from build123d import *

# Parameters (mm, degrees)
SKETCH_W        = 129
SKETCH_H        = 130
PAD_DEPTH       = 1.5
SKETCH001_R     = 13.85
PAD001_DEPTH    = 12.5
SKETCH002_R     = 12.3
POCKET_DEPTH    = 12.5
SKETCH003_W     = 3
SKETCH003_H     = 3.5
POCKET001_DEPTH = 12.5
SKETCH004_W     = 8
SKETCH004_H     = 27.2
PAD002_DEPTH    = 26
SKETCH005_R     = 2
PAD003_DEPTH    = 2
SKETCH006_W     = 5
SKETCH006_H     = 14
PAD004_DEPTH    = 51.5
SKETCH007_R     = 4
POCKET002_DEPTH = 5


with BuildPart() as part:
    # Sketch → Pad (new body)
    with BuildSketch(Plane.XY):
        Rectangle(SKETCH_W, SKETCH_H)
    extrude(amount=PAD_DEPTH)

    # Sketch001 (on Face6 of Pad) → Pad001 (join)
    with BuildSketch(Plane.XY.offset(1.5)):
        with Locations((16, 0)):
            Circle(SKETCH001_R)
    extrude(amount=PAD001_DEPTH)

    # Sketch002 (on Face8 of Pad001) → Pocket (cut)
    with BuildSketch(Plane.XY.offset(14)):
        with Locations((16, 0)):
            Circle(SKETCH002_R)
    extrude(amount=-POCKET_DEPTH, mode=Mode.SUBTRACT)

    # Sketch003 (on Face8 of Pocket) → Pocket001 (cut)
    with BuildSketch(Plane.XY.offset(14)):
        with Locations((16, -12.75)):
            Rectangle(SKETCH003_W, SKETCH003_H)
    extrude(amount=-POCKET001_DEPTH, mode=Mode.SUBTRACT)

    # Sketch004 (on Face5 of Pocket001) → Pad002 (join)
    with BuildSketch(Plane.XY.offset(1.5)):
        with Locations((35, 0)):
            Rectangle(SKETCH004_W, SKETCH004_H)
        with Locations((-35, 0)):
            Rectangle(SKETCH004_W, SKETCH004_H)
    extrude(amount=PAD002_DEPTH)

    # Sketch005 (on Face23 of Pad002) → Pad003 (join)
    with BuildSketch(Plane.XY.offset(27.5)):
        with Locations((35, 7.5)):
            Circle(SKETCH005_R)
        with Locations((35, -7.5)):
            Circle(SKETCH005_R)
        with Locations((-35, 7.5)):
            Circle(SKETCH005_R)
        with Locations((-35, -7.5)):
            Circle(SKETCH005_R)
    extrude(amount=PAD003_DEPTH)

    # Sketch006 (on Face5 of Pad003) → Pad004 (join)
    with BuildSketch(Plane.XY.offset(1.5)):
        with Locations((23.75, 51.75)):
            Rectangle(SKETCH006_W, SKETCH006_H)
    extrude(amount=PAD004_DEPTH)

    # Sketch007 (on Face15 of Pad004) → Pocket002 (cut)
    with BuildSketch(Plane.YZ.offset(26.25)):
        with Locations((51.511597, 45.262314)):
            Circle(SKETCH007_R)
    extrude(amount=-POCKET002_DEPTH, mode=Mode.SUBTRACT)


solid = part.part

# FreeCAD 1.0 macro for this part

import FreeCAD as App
import Part
import Sketcher
Q = App.Units.Quantity

doc = App.newDocument("Part")
body = doc.addObject("PartDesign::Body", "Body")

sketch1 = doc.addObject("Sketcher::SketchObject", "Sketch")
body.addObject(sketch1)
sketch1.AttachmentSupport = (doc.XY_Plane, [""])
sketch1.MapMode = "FlatFace"
sketch1.addGeometry([
    Part.LineSegment(App.Vector(-64.5, 65, 0), App.Vector(-64.5, -65, 0)),
    Part.LineSegment(App.Vector(-64.5, -65, 0), App.Vector(64.5, -65, 0)),
    Part.LineSegment(App.Vector(64.5, -65, 0), App.Vector(64.5, 65, 0)),
    Part.LineSegment(App.Vector(64.5, 65, 0), App.Vector(-64.5, 65, 0)),
], False)
sketch1.addConstraint([
    Sketcher.Constraint("Coincident", 0, 2, 1, 1),
    Sketcher.Constraint("Coincident", 1, 2, 2, 1),
    Sketcher.Constraint("Coincident", 2, 2, 3, 1),
    Sketcher.Constraint("Coincident", 3, 2, 0, 1),
    Sketcher.Constraint("Vertical", 0),
    Sketcher.Constraint("Horizontal", 1),
    Sketcher.Constraint("Vertical", 2),
    Sketcher.Constraint("Horizontal", 3),
    Sketcher.Constraint("Symmetric", 0, 2, 2, 2, -1, 1),
    Sketcher.Constraint("DistanceX", 1, 1, 1, 2, Q("129 mm")),
    Sketcher.Constraint("DistanceY", 0, 2, 0, 1, Q("130 mm")),
])
pad1 = doc.addObject("PartDesign::Pad", "Pad")
body.addObject(pad1)
pad1.Profile = sketch1
pad1.Length = 1.5

sketch2 = doc.addObject("Sketcher::SketchObject", "Sketch001")
body.addObject(sketch2)
sketch2.AttachmentSupport = (doc.XY_Plane, [""])
sketch2.MapMode = "FlatFace"
sketch2.AttachmentOffset = App.Placement(App.Vector(0, 0, 1.5), App.Rotation())
sketch2.addGeometry(Part.Circle(App.Vector(16, 0, 0), App.Vector(0, 0, 1), 13.85), False)
sketch2.addConstraint([
    Sketcher.Constraint("PointOnObject", 0, 3, -1),
    Sketcher.Constraint("Diameter", 0, Q("27.7 mm")),
    Sketcher.Constraint("DistanceX", -1, 1, 0, 3, Q("16 mm")),
])
pad2 = doc.addObject("PartDesign::Pad", "Pad001")
body.addObject(pad2)
pad2.Profile = sketch2
pad2.Length = 12.5

sketch3 = doc.addObject("Sketcher::SketchObject", "Sketch002")
body.addObject(sketch3)
sketch3.AttachmentSupport = (doc.XY_Plane, [""])
sketch3.MapMode = "FlatFace"
sketch3.AttachmentOffset = App.Placement(App.Vector(0, 0, 14), App.Rotation())
sketch3.addGeometry(Part.Circle(App.Vector(16, 0, 0), App.Vector(0, 0, 1), 12.3), False)
sketch3.addConstraint([
    Sketcher.Constraint("PointOnObject", 0, 3, -1),
    Sketcher.Constraint("Diameter", 0, Q("24.6 mm")),
    Sketcher.Constraint("DistanceX", -1, 1, 0, 3, Q("16 mm")),
])
pocket1 = doc.addObject("PartDesign::Pocket", "Pocket")
body.addObject(pocket1)
pocket1.Profile = sketch3
pocket1.Length = 12.5

sketch4 = doc.addObject("Sketcher::SketchObject", "Sketch003")
body.addObject(sketch4)
sketch4.AttachmentSupport = (doc.XY_Plane, [""])
sketch4.MapMode = "FlatFace"
sketch4.AttachmentOffset = App.Placement(App.Vector(0, 0, 14), App.Rotation())
sketch4.addGeometry([
    Part.LineSegment(App.Vector(14.5, -11, 0), App.Vector(14.5, -14.5, 0)),
    Part.LineSegment(App.Vector(14.5, -14.5, 0), App.Vector(17.5, -14.5, 0)),
    Part.LineSegment(App.Vector(17.5, -14.5, 0), App.Vector(17.5, -11, 0)),
    Part.LineSegment(App.Vector(17.5, -11, 0), App.Vector(14.5, -11, 0)),
], False)
sketch4.addConstraint([
    Sketcher.Constraint("Coincident", 0, 2, 1, 1),
    Sketcher.Constraint("Coincident", 1, 2, 2, 1),
    Sketcher.Constraint("Coincident", 2, 2, 3, 1),
    Sketcher.Constraint("Coincident", 3, 2, 0, 1),
    Sketcher.Constraint("Vertical", 0),
    Sketcher.Constraint("Horizontal", 1),
    Sketcher.Constraint("Vertical", 2),
    Sketcher.Constraint("Horizontal", 3),
    Sketcher.Constraint("DistanceX", 1, 1, 1, 2, Q("3 mm")),
    Sketcher.Constraint("DistanceY", 0, 2, 0, 1, Q("3.5 mm")),
    Sketcher.Constraint("DistanceY", 2, 2, -1, 1, Q("11 mm")),
    Sketcher.Constraint("DistanceX", -1, 1, 0, 2, Q("14.5 mm")),
])
pocket2 = doc.addObject("PartDesign::Pocket", "Pocket001")
body.addObject(pocket2)
pocket2.Profile = sketch4
pocket2.Length = 12.5

sketch5 = doc.addObject("Sketcher::SketchObject", "Sketch004")
body.addObject(sketch5)
sketch5.AttachmentSupport = (doc.XY_Plane, [""])
sketch5.MapMode = "FlatFace"
sketch5.AttachmentOffset = App.Placement(App.Vector(0, 0, 1.5), App.Rotation())
sketch5.addGeometry([
    Part.LineSegment(App.Vector(31, 13.6, 0), App.Vector(31, -13.6, 0)),
    Part.LineSegment(App.Vector(31, -13.6, 0), App.Vector(39, -13.6, 0)),
    Part.LineSegment(App.Vector(39, -13.6, 0), App.Vector(39, 13.6, 0)),
    Part.LineSegment(App.Vector(39, 13.6, 0), App.Vector(31, 13.6, 0)),
    Part.LineSegment(App.Vector(-39, 13.6, 0), App.Vector(-39, -13.6, 0)),
    Part.LineSegment(App.Vector(-39, -13.6, 0), App.Vector(-31, -13.6, 0)),
    Part.LineSegment(App.Vector(-31, -13.6, 0), App.Vector(-31, 13.6, 0)),
    Part.LineSegment(App.Vector(-31, 13.6, 0), App.Vector(-39, 13.6, 0)),
], False)
sketch5.addConstraint([
    Sketcher.Constraint("Coincident", 0, 2, 1, 1),
    Sketcher.Constraint("Coincident", 1, 2, 2, 1),
    Sketcher.Constraint("Coincident", 2, 2, 3, 1),
    Sketcher.Constraint("Coincident", 3, 2, 0, 1),
    Sketcher.Constraint("Coincident", 4, 2, 5, 1),
    Sketcher.Constraint("Coincident", 5, 2, 6, 1),
    Sketcher.Constraint("Coincident", 6, 2, 7, 1),
    Sketcher.Constraint("Coincident", 7, 2, 4, 1),
    Sketcher.Constraint("Vertical", 0),
    Sketcher.Constraint("Horizontal", 1),
    Sketcher.Constraint("Vertical", 2),
    Sketcher.Constraint("Horizontal", 3),
    Sketcher.Constraint("Vertical", 4),
    Sketcher.Constraint("Horizontal", 5),
    Sketcher.Constraint("Vertical", 6),
    Sketcher.Constraint("Horizontal", 7),
    Sketcher.Constraint("Symmetric", 2, 2, 4, 2, -1, 1),
    Sketcher.Constraint("Symmetric", 0, 2, 6, 2, -1, 1),
    Sketcher.Constraint("Horizontal", 1, 2, 4, 2),
    Sketcher.Constraint("DistanceX", 1, 1, 1, 2, Q("8 mm")),
    Sketcher.Constraint("DistanceY", 0, 2, 0, 1, Q("27.2 mm")),
    Sketcher.Constraint("DistanceX", -1, 1, 0, 2, Q("31 mm")),
])
pad3 = doc.addObject("PartDesign::Pad", "Pad002")
body.addObject(pad3)
pad3.Profile = sketch5
pad3.Length = 26

sketch6 = doc.addObject("Sketcher::SketchObject", "Sketch005")
body.addObject(sketch6)
sketch6.AttachmentSupport = (doc.XY_Plane, [""])
sketch6.MapMode = "FlatFace"
sketch6.AttachmentOffset = App.Placement(App.Vector(0, 0, 27.5), App.Rotation())
sketch6.addGeometry([
    Part.Circle(App.Vector(35, 7.5, 0), App.Vector(0, 0, 1), 2),
    Part.Circle(App.Vector(35, -7.5, 0), App.Vector(0, 0, 1), 2),
    Part.Circle(App.Vector(-35, 7.5, 0), App.Vector(0, 0, 1), 2),
    Part.Circle(App.Vector(-35, -7.5, 0), App.Vector(0, 0, 1), 2),
], False)
sketch6.addConstraint([
    Sketcher.Constraint("Equal", 0, 1),
    Sketcher.Constraint("Equal", 1, 2),
    Sketcher.Constraint("Equal", 2, 3),
    Sketcher.Constraint("Symmetric", 1, 3, 2, 3, -1, 1),
    Sketcher.Constraint("Symmetric", 0, 3, 3, 3, -1, 1),
    Sketcher.Constraint("Symmetric", 0, 3, 2, 3, -2),
    Sketcher.Constraint("Diameter", 0, Q("4 mm")),
    Sketcher.Constraint("DistanceX", -1, 1, 0, 3, Q("35 mm")),
    Sketcher.Constraint("DistanceY", 1, 3, 0, 3, Q("15 mm")),
])
pad4 = doc.addObject("PartDesign::Pad", "Pad003")
body.addObject(pad4)
pad4.Profile = sketch6
pad4.Length = 2

sketch7 = doc.addObject("Sketcher::SketchObject", "Sketch006")
body.addObject(sketch7)
sketch7.AttachmentSupport = (doc.XY_Plane, [""])
sketch7.MapMode = "FlatFace"
sketch7.AttachmentOffset = App.Placement(App.Vector(0, 0, 1.5), App.Rotation())
sketch7.addGeometry([
    Part.LineSegment(App.Vector(21.25, 58.75, 0), App.Vector(21.25, 44.75, 0)),
    Part.LineSegment(App.Vector(21.25, 44.75, 0), App.Vector(26.25, 44.75, 0)),
    Part.LineSegment(App.Vector(26.25, 44.75, 0), App.Vector(26.25, 58.75, 0)),
    Part.LineSegment(App.Vector(26.25, 58.75, 0), App.Vector(21.25, 58.75, 0)),
], False)
sketch7.addConstraint([
    Sketcher.Constraint("Coincident", 0, 2, 1, 1),
    Sketcher.Constraint("Coincident", 1, 2, 2, 1),
    Sketcher.Constraint("Coincident", 2, 2, 3, 1),
    Sketcher.Constraint("Coincident", 3, 2, 0, 1),
    Sketcher.Constraint("Vertical", 0),
    Sketcher.Constraint("Horizontal", 1),
    Sketcher.Constraint("Vertical", 2),
    Sketcher.Constraint("Horizontal", 3),
    Sketcher.Constraint("DistanceX", 1, 1, 1, 2, Q("5 mm")),
    Sketcher.Constraint("DistanceY", 0, 2, 0, 1, Q("14 mm")),
    Sketcher.Constraint("DistanceX", -1, 1, 0, 2, Q("21.25 mm")),
    Sketcher.Constraint("DistanceY", -1, 1, 0, 2, Q("44.75 mm")),
])
pad5 = doc.addObject("PartDesign::Pad", "Pad004")
body.addObject(pad5)
pad5.Profile = sketch7
pad5.Length = 51.5

sketch8 = doc.addObject("Sketcher::SketchObject", "Sketch007")
body.addObject(sketch8)
sketch8.AttachmentSupport = (doc.YZ_Plane, [""])
sketch8.MapMode = "FlatFace"
sketch8.AttachmentOffset = App.Placement(App.Vector(0, 0, 26.25), App.Rotation())
sketch8.addGeometry(Part.Circle(App.Vector(51.511597, 45.262314, 0), App.Vector(0, 0, 1), 4), False)
sketch8.addConstraint([
    Sketcher.Constraint("Diameter", 0, Q("8 mm")),
    Sketcher.Constraint("DistanceX", -1, 1, 0, 3, Q("51.511597 mm")),
    Sketcher.Constraint("DistanceY", -1, 1, 0, 3, Q("45.262314 mm")),
])
pocket3 = doc.addObject("PartDesign::Pocket", "Pocket002")
body.addObject(pocket3)
pocket3.Profile = sketch8
pocket3.Length = 5

doc.recompute()
